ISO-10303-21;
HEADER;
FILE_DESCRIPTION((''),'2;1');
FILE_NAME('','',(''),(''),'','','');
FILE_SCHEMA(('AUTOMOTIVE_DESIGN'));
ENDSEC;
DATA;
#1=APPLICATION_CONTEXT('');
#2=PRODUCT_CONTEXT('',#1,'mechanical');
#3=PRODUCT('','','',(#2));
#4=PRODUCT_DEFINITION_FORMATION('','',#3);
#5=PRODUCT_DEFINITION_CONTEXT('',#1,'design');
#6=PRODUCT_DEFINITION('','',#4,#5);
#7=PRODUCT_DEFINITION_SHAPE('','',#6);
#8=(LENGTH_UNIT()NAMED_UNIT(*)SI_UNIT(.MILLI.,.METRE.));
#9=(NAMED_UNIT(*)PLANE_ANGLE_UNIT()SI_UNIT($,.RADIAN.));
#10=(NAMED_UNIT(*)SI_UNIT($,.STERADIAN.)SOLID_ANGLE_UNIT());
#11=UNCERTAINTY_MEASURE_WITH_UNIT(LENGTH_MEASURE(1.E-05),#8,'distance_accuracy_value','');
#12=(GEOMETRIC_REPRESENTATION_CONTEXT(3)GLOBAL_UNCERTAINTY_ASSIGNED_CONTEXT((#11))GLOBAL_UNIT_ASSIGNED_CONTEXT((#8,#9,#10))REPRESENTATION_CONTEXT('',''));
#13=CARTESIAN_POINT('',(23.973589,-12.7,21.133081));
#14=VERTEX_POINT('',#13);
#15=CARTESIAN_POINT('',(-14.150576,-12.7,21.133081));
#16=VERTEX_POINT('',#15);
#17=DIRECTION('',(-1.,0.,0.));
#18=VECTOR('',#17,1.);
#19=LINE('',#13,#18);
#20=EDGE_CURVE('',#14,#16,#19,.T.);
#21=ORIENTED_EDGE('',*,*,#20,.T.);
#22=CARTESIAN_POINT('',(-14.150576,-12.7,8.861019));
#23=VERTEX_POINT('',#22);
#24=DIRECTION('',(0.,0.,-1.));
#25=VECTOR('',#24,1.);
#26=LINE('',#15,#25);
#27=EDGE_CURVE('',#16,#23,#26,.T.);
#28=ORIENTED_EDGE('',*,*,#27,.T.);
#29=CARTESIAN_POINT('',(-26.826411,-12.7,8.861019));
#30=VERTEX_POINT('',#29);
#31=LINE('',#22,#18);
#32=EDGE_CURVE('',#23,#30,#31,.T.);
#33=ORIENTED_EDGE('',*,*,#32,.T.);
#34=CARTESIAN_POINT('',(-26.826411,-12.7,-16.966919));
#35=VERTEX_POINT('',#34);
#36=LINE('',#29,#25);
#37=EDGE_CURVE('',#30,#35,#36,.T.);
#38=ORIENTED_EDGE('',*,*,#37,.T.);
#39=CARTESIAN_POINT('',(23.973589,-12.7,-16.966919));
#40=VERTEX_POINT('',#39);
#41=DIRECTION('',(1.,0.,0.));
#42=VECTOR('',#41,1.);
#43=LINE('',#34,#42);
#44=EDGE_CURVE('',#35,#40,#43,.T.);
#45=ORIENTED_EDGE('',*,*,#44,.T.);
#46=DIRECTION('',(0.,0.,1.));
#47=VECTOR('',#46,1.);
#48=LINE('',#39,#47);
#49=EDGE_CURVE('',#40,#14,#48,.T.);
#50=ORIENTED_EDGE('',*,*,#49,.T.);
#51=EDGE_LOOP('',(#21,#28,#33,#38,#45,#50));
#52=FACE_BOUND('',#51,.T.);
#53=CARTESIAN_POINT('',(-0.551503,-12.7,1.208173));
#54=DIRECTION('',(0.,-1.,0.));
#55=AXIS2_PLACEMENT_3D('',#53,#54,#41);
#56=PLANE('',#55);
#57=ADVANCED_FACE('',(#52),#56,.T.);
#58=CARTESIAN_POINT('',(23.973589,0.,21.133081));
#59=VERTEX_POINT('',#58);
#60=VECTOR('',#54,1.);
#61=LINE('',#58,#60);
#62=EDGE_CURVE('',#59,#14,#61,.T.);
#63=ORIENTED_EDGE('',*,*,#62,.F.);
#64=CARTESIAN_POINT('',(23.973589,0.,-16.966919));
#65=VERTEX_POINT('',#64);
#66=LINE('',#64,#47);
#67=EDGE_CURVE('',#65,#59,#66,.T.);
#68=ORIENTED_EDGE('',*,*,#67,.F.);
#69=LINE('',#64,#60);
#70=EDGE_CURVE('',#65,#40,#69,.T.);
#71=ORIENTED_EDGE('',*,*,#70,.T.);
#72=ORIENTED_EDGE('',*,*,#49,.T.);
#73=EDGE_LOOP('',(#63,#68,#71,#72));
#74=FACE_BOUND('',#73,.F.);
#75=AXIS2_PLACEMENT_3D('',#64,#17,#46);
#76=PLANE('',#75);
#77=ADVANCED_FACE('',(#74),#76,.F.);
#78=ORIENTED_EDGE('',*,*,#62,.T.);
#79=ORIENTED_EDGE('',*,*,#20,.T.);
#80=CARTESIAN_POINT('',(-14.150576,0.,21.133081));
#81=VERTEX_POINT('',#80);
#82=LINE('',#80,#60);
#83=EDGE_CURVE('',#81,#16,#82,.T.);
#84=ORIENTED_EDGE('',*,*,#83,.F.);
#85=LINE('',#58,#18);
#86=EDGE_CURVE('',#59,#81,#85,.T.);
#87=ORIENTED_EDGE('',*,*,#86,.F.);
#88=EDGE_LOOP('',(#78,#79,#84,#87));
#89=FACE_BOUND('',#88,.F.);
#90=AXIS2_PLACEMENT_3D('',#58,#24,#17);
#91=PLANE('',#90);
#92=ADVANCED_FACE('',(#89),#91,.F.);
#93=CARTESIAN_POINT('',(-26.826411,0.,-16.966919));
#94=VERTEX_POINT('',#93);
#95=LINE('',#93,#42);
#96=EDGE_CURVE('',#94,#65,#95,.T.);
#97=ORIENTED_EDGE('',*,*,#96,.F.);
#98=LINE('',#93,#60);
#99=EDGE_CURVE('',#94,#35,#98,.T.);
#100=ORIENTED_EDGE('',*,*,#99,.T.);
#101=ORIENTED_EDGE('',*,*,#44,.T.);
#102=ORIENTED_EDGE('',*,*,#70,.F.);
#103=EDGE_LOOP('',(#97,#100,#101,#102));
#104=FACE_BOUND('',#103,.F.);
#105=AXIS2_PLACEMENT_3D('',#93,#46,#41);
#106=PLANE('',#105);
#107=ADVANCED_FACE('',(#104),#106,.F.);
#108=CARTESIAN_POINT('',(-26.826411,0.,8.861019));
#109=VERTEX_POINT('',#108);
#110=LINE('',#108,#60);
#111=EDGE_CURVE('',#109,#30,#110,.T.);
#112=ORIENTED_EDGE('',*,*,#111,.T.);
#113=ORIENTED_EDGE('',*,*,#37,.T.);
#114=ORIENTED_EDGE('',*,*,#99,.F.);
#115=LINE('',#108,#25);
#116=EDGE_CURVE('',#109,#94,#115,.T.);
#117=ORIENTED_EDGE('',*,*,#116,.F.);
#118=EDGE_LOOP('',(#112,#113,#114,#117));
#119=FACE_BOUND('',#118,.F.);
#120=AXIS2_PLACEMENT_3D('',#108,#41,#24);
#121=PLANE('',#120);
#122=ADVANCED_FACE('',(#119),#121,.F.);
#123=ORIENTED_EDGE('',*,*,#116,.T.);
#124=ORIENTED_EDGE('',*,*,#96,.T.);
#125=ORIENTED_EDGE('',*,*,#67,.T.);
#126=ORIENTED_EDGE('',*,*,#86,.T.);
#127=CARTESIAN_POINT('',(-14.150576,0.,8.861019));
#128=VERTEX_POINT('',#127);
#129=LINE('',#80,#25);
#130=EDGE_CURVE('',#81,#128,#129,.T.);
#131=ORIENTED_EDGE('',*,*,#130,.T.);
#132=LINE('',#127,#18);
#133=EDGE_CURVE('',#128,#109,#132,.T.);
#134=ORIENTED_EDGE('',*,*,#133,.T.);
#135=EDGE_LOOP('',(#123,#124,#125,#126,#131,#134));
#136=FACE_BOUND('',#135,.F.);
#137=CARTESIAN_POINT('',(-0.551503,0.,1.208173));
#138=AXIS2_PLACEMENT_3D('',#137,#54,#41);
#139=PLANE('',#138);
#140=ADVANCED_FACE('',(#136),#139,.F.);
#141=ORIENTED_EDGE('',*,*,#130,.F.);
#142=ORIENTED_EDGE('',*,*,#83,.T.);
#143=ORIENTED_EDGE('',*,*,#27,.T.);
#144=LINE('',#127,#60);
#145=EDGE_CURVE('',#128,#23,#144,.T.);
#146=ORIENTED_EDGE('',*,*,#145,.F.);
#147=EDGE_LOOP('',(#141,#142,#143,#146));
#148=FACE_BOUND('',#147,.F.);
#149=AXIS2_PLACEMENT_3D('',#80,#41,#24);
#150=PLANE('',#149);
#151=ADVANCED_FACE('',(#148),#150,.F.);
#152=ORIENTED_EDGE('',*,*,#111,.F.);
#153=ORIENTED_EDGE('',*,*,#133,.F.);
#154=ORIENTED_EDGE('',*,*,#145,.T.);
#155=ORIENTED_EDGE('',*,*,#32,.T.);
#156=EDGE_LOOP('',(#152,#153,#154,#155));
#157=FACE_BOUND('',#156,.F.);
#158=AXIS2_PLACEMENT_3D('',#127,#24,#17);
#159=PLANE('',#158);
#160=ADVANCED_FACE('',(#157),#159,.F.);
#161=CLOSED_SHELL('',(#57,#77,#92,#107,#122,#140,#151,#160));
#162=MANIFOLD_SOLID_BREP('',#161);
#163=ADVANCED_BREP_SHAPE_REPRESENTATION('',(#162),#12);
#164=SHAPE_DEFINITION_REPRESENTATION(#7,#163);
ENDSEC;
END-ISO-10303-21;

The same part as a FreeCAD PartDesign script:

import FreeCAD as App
import Part
import Sketcher
Q = App.Units.Quantity

doc = App.newDocument("Part")
body = doc.addObject("PartDesign::Body", "Body")

# Sketch on XZ plane
sketch1 = body.newObject("Sketcher::SketchObject", "Sketch")
sketch1.AttachmentSupport = (doc.getObject("XZ_Plane"), [""])
sketch1.MapMode = "FlatFace"
sketch1.addGeometry([
    Part.LineSegment(App.Vector(23.973589, 21.133081, 0), App.Vector(-14.150576, 21.133081, 0)),  # 0
    Part.LineSegment(App.Vector(-14.150576, 21.133081, 0), App.Vector(-14.150576, 8.861019, 0)),  # 1
    Part.LineSegment(App.Vector(-14.150576, 8.861019, 0), App.Vector(-26.826411, 8.861019, 0)),  # 2
    Part.LineSegment(App.Vector(-26.826411, 8.861019, 0), App.Vector(-26.826411, -16.966919, 0)),  # 3
    Part.LineSegment(App.Vector(-26.826411, -16.966919, 0), App.Vector(23.973589, -16.966919, 0)),  # 4
    Part.LineSegment(App.Vector(23.973589, -16.966919, 0), App.Vector(23.973589, 21.133081, 0)),  # 5
], False)
sketch1.addConstraint([
    Sketcher.Constraint("Coincident", 0, 2, 1, 1),
    Sketcher.Constraint("Coincident", 1, 2, 2, 1),
    Sketcher.Constraint("Coincident", 2, 2, 3, 1),
    Sketcher.Constraint("Coincident", 3, 2, 4, 1),
    Sketcher.Constraint("Coincident", 4, 2, 5, 1),
    Sketcher.Constraint("Coincident", 5, 2, 0, 1),
    Sketcher.Constraint("Horizontal", 0),
    Sketcher.Constraint("Vertical", 1),
    Sketcher.Constraint("Horizontal", 2),
    Sketcher.Constraint("Vertical", 3),
    Sketcher.Constraint("Horizontal", 4),
    Sketcher.Constraint("Vertical", 5),
    Sketcher.Constraint("DistanceX", 4, 1, 4, 2, Q("2 in")),
    Sketcher.Constraint("DistanceY", 5, 1, 5, 2, Q("1.5 in")),
    Sketcher.Constraint("DistanceY", 3, 2, 3, 1, 25.827938),
    Sketcher.Constraint("DistanceX", 0, 2, 0, 1, 38.124165),
    Sketcher.Constraint("DistanceY", -1, 1, 0, 2, 21.133081),
    Sketcher.Constraint("DistanceX", 2, 2, -1, 1, 26.826411),
])
pad1 = body.newObject("PartDesign::Pad", "Pad")
pad1.Profile = sketch1
pad1.Length = Q("0.5 in")

doc.recompute()
